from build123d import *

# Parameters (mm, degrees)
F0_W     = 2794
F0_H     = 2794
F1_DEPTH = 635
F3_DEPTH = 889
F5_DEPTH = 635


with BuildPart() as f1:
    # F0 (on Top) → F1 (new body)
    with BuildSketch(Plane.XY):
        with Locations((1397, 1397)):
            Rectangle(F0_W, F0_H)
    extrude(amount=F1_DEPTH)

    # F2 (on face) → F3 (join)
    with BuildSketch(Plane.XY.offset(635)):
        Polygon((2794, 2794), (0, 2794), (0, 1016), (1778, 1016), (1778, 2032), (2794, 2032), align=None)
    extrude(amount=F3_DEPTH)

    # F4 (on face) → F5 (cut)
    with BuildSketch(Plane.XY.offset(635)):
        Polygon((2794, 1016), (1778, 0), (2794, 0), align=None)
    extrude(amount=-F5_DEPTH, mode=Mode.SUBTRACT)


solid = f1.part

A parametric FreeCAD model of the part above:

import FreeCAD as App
import Part
import Sketcher

V = App.Vector
Q = App.Units.Quantity

doc = App.newDocument("Part")
body = doc.addObject("PartDesign::Body", "Body")

sketch1 = doc.addObject("Sketcher::SketchObject", "Sketch")
body.addObject(sketch1)
sketch1.AttachmentSupport = (doc.XY_Plane, [""])
sketch1.MapMode = "FlatFace"
sketch1.addGeometry([
    Part.LineSegment(V(0, 2794, 0), V(0, 0, 0)),
    Part.LineSegment(V(0, 0, 0), V(2794, 0, 0)),
    Part.LineSegment(V(2794, 0, 0), V(2794, 2794, 0)),
    Part.LineSegment(V(2794, 2794, 0), V(0, 2794, 0)),
], False)
sketch1.addConstraint([
    Sketcher.Constraint("Coincident", 0, 2, 1, 1),
    Sketcher.Constraint("Coincident", 1, 2, 2, 1),
    Sketcher.Constraint("Coincident", 2, 2, 3, 1),
    Sketcher.Constraint("Coincident", 3, 2, 0, 1),
    Sketcher.Constraint("Vertical", 0),
    Sketcher.Constraint("Horizontal", 1),
    Sketcher.Constraint("Vertical", 2),
    Sketcher.Constraint("Horizontal", 3),
    Sketcher.Constraint("Coincident", 0, 2, -1, 1),
    Sketcher.Constraint("Equal", 3, 0),
    Sketcher.Constraint("DistanceX", 1, 1, 1, 2, Q("110 in")),
])
pad1 = doc.addObject("PartDesign::Pad", "Pad")
body.addObject(pad1)
pad1.Profile = sketch1
pad1.Length = Q("25 in")

sketch2 = doc.addObject("Sketcher::SketchObject", "Sketch001")
body.addObject(sketch2)
sketch2.AttachmentSupport = (doc.XY_Plane, [""])
sketch2.MapMode = "FlatFace"
sketch2.AttachmentOffset = App.Placement(V(0, 0, 25 * 25.4), App.Rotation())
sketch2.addGeometry([
    Part.LineSegment(V(2794, 2794, 0), V(0, 2794, 0)),
    Part.LineSegment(V(0, 2794, 0), V(0, 1016, 0)),
    Part.LineSegment(V(0, 1016, 0), V(1778, 1016, 0)),
    Part.LineSegment(V(1778, 1016, 0), V(1778, 2032, 0)),
    Part.LineSegment(V(1778, 2032, 0), V(2794, 2032, 0)),
    Part.LineSegment(V(2794, 2032, 0), V(2794, 2794, 0)),
], False)
sketch2.addConstraint([
    Sketcher.Constraint("Coincident", 0, 2, 1, 1),
    Sketcher.Constraint("Coincident", 1, 2, 2, 1),
    Sketcher.Constraint("Coincident", 2, 2, 3, 1),
    Sketcher.Constraint("Coincident", 3, 2, 4, 1),
    Sketcher.Constraint("Coincident", 4, 2, 5, 1),
    Sketcher.Constraint("Coincident", 5, 2, 0, 1),
    Sketcher.Constraint("Horizontal", 0),
    Sketcher.Constraint("Vertical", 1),
    Sketcher.Constraint("Horizontal", 2),
    Sketcher.Constraint("Vertical", 3),
    Sketcher.Constraint("Horizontal", 4),
    Sketcher.Constraint("Vertical", 5),
    Sketcher.Constraint("PointOnObject", 0, 2, -2),
    Sketcher.Constraint("Equal", 2, 1),
    Sketcher.Constraint("Equal", 4, 3),
    Sketcher.Constraint("DistanceX", 0, 2, 0, 1, Q("110 in")),
    Sketcher.Constraint("DistanceX", 2, 1, 2, 2, Q("70 in")),
    Sketcher.Constraint("DistanceY", -1, 1, 0, 2, Q("110 in")),
])
pad2 = doc.addObject("PartDesign::Pad", "Pad001")
body.addObject(pad2)
pad2.Profile = sketch2
pad2.Length = Q("35 in")

sketch3 = doc.addObject("Sketcher::SketchObject", "Sketch002")
body.addObject(sketch3)
sketch3.AttachmentSupport = (doc.XY_Plane, [""])
sketch3.MapMode = "FlatFace"
sketch3.AttachmentOffset = App.Placement(V(0, 0, 25 * 25.4), App.Rotation())
sketch3.addGeometry([
    Part.LineSegment(V(2794, 1016, 0), V(1778, 0, 0)),
    Part.LineSegment(V(1778, 0, 0), V(2794, 0, 0)),
    Part.LineSegment(V(2794, 0, 0), V(2794, 1016, 0)),
], False)
sketch3.addConstraint([
    Sketcher.Constraint("Coincident", 0, 2, 1, 1),
    Sketcher.Constraint("Coincident", 1, 2, 2, 1),
    Sketcher.Constraint("Coincident", 2, 2, 0, 1),
    Sketcher.Constraint("Horizontal", 1),
    Sketcher.Constraint("Vertical", 2),
    Sketcher.Constraint("PointOnObject", 0, 2, -1),
    Sketcher.Constraint("Equal", 1, 2),
    Sketcher.Constraint("DistanceX", 1, 1, 1, 2, Q("40 in")),
    Sketcher.Constraint("DistanceX", -1, 1, 0, 2, Q("70 in")),
])
pocket1 = doc.addObject("PartDesign::Pocket", "Pocket")
body.addObject(pocket1)
pocket1.Profile = sketch3
pocket1.Length = Q("25 in")

doc.recompute()
